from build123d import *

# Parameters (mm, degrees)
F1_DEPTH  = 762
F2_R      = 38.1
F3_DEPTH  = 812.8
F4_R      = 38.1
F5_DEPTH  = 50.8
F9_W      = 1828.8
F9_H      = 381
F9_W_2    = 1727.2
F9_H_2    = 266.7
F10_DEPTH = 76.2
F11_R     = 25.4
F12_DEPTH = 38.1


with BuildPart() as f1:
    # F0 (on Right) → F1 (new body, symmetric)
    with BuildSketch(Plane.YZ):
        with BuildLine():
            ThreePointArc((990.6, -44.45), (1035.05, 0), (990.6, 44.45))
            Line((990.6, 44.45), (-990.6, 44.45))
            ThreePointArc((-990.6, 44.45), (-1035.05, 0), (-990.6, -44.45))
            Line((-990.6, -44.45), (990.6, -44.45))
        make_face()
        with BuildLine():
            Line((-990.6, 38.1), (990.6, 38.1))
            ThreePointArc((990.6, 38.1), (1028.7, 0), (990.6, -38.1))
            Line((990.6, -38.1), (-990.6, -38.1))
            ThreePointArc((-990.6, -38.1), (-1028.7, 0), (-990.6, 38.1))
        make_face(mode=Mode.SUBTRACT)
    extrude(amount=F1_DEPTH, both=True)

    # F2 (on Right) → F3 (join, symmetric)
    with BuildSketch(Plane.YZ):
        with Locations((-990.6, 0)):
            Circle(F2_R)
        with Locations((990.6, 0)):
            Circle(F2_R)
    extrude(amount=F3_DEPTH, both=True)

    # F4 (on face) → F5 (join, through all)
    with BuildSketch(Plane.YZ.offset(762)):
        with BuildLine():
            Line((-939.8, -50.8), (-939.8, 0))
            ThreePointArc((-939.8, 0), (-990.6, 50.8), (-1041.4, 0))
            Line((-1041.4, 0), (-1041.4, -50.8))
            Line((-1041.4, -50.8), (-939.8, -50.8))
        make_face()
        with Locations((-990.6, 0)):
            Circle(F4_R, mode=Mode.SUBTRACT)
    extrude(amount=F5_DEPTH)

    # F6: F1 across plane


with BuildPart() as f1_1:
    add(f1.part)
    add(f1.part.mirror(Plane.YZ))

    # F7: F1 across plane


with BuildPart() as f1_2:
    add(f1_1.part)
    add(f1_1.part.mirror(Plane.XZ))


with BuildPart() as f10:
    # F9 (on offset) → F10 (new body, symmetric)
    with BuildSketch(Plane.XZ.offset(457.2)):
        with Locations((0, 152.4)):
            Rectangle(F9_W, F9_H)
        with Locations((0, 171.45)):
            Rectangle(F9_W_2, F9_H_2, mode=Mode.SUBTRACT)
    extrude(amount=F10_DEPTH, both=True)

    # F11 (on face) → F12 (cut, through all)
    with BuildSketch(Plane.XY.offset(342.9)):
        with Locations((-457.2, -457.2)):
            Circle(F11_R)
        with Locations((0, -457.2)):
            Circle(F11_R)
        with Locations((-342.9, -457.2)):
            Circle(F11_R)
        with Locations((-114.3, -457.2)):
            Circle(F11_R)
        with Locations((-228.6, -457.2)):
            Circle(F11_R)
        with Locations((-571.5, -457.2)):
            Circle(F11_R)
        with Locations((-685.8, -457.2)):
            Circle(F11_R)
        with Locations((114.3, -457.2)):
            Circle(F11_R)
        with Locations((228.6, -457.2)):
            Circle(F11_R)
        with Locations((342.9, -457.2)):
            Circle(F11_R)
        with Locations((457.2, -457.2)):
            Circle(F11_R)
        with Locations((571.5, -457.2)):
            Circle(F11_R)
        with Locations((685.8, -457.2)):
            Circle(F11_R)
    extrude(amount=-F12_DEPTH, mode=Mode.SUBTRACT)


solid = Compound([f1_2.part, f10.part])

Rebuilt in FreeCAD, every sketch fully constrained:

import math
import FreeCAD as App
import Part
import Sketcher
Q = App.Units.Quantity

doc = App.newDocument("Part")
body = doc.addObject("PartDesign::Body", "Body")

sketch1 = body.newObject("Sketcher::SketchObject", "Sketch")
sketch1.AttachmentSupport = (doc.getObject("YZ_Plane"), [""])
sketch1.MapMode = "FlatFace"
sketch1.addGeometry([
    Part.ArcOfCircle(Part.Circle(App.Vector(991, 0, 0), App.Vector(0, 0, 1), 44), math.radians(-90), math.radians(90)),
    Part.LineSegment(App.Vector(991, 44, 0), App.Vector(-991, 44, 0)),
    Part.ArcOfCircle(Part.Circle(App.Vector(-991, 0, 0), App.Vector(0, 0, 1), 44), math.radians(90), math.radians(270)),
    Part.LineSegment(App.Vector(-991, -44, 0), App.Vector(991, -44, 0)),
    Part.ArcOfCircle(Part.Circle(App.Vector(-991, 0, 0), App.Vector(0, 0, 1), 38), math.radians(90), math.radians(270)),
    Part.LineSegment(App.Vector(-991, 38, 0), App.Vector(991, 38, 0)),
    Part.ArcOfCircle(Part.Circle(App.Vector(991, 0, 0), App.Vector(0, 0, 1), 38), math.radians(-90), math.radians(90)),
    Part.LineSegment(App.Vector(991, -38, 0), App.Vector(-991, -38, 0)),
], False)
sketch1.addConstraint([
    Sketcher.Constraint("Tangent", 0, 2, 1, 1),
    Sketcher.Constraint("Tangent", 1, 2, 2, 1),
    Sketcher.Constraint("Tangent", 2, 2, 3, 1),
    Sketcher.Constraint("Tangent", 3, 2, 0, 1),
    Sketcher.Constraint("Tangent", 4, 1, 5, 1),
    Sketcher.Constraint("Tangent", 5, 2, 6, 2),
    Sketcher.Constraint("Tangent", 6, 1, 7, 1),
    Sketcher.Constraint("Tangent", 7, 2, 4, 2),
    Sketcher.Constraint("Horizontal", 1),
    Sketcher.Constraint("Horizontal", 3),
    Sketcher.Constraint("Horizontal", 5),
    Sketcher.Constraint("Horizontal", 7),
    Sketcher.Constraint("Coincident", 4, 3, 2, 3),
    Sketcher.Constraint("Symmetric", 0, 3, 2, 3, -1, 1),
    Sketcher.Constraint("Vertical", 6, 3, 0, 2),
    Sketcher.Constraint("Radius", 4, Q("1.5 in")),
    Sketcher.Constraint("DistanceX", 1, 2, 1, 1, Q("78 in")),
    Sketcher.Constraint("Radius", 0, Q("1.75 in")),
])
pad1 = body.newObject("PartDesign::Pad", "Pad")
pad1.Profile = sketch1
pad1.Length = Q("60 in")
pad1.Midplane = True

sketch2 = body.newObject("Sketcher::SketchObject", "Sketch001")
sketch2.AttachmentSupport = (doc.getObject("YZ_Plane"), [""])
sketch2.MapMode = "FlatFace"
sketch2.addGeometry([
    Part.Circle(App.Vector(-991, 0, 0), App.Vector(0, 0, 1), 38),
    Part.Circle(App.Vector(991, 0, 0), App.Vector(0, 0, 1), 38),
], False)
sketch2.addConstraint([
    Sketcher.Constraint("Equal", 0, 1),
    Sketcher.Constraint("Symmetric", 0, 3, 1, 3, -1, 1),
    Sketcher.Constraint("PointOnObject", 0, 3, -1),
    Sketcher.Constraint("Diameter", 0, Q("3 in")),
    Sketcher.Constraint("DistanceX", 0, 3, -1, 1, Q("39 in")),
])
pad2 = body.newObject("PartDesign::Pad", "Pad001")
pad2.Profile = sketch2
pad2.Length = Q("64 in")
pad2.Midplane = True

sketch3 = body.newObject("Sketcher::SketchObject", "Sketch002")
sketch3.AttachmentSupport = (doc.getObject("YZ_Plane"), [""])
sketch3.MapMode = "FlatFace"
sketch3.AttachmentOffset = App.Placement(App.Vector(0, 0, 30 * 25.4), App.Rotation())
sketch3.addGeometry([
    Part.LineSegment(App.Vector(-940, -51, 0), App.Vector(-940, 0, 0)),
    Part.ArcOfCircle(Part.Circle(App.Vector(-991, 0, 0), App.Vector(0, 0, 1), 51), math.radians(0), math.radians(180)),
    Part.LineSegment(App.Vector(-1041, 0, 0), App.Vector(-1041, -51, 0)),
    Part.LineSegment(App.Vector(-1041, -51, 0), App.Vector(-940, -51, 0)),
    Part.Circle(App.Vector(-991, 0, 0), App.Vector(0, 0, 1), 38),
], False)
sketch3.addConstraint([
    Sketcher.Constraint("Tangent", 0, 2, 1, 1),
    Sketcher.Constraint("Tangent", 1, 2, 2, 1),
    Sketcher.Constraint("Coincident", 2, 2, 3, 1),
    Sketcher.Constraint("Coincident", 3, 2, 0, 1),
    Sketcher.Constraint("Vertical", 0),
    Sketcher.Constraint("Vertical", 2),
    Sketcher.Constraint("Horizontal", 3),
    Sketcher.Constraint("Coincident", 4, 3, 1, 3),
    Sketcher.Constraint("PointOnObject", 1, 3, -1),
    Sketcher.Constraint("Diameter", 4, Q("3 in")),
    Sketcher.Constraint("Radius", 1, Q("2 in")),
    Sketcher.Constraint("DistanceY", 0, 1, 0, 2, Q("2 in")),
    Sketcher.Constraint("DistanceX", 1, 3, -1, 1, Q("39 in")),
])
pad3 = body.newObject("PartDesign::Pad", "Pad002")
pad3.Profile = sketch3
pad3.Type = "UpToLast"
body2 = doc.addObject("PartDesign::Body", "Body001")
doc.recompute()

body2.BaseFeature = body
doc.recompute()

mirroring = doc.addObject("Part::Mirroring", "Mirroring")
mirroring.Source = body
mirroring.Base = App.Vector(0, 0, 0)
mirroring.Normal = App.Vector(1, 0, 0)
body3 = doc.addObject("PartDesign::Body", "Body002")
body3.BaseFeature = mirroring
boolean = body2.newObject("PartDesign::Boolean", "Boolean")
boolean.Type = "Fuse"
boolean.addObjects([body3])
doc.recompute()
body4 = doc.addObject("PartDesign::Body", "Body003")
doc.recompute()

body4.BaseFeature = body2
doc.recompute()

mirroring2 = doc.addObject("Part::Mirroring", "Mirroring001")
mirroring2.Source = body2
mirroring2.Base = App.Vector(0, 0, 0)
mirroring2.Normal = App.Vector(0, -1, 0)
body5 = doc.addObject("PartDesign::Body", "Body004")
body5.BaseFeature = mirroring2
boolean2 = body4.newObject("PartDesign::Boolean", "Boolean001")
boolean2.Type = "Fuse"
boolean2.addObjects([body5])
doc.recompute()
body6 = doc.addObject("PartDesign::Body", "Body005")

sketch4 = body6.newObject("Sketcher::SketchObject", "Sketch003")
sketch4.AttachmentSupport = (doc.getObject("XZ_Plane005"), [""])
sketch4.MapMode = "FlatFace"
sketch4.AttachmentOffset = App.Placement(App.Vector(0, 0, 18 * 25.4), App.Rotation())
sketch4.addGeometry([
    Part.LineSegment(App.Vector(-914, 343, 0), App.Vector(-914, -38, 0)),
    Part.LineSegment(App.Vector(-914, -38, 0), App.Vector(914, -38, 0)),
    Part.LineSegment(App.Vector(914, -38, 0), App.Vector(914, 343, 0)),
    Part.LineSegment(App.Vector(914, 343, 0), App.Vector(-914, 343, 0)),
    Part.LineSegment(App.Vector(864, 38, 0), App.Vector(-864, 38, 0)),
    Part.LineSegment(App.Vector(-864, 38, 0), App.Vector(-864, 305, 0)),
    Part.LineSegment(App.Vector(-864, 305, 0), App.Vector(864, 305, 0)),
    Part.LineSegment(App.Vector(864, 305, 0), App.Vector(864, 38, 0)),
], False)
sketch4.addConstraint([
    Sketcher.Constraint("Coincident", 0, 2, 1, 1),
    Sketcher.Constraint("Coincident", 1, 2, 2, 1),
    Sketcher.Constraint("Coincident", 2, 2, 3, 1),
    Sketcher.Constraint("Coincident", 3, 2, 0, 1),
    Sketcher.Constraint("Coincident", 4, 2, 5, 1),
    Sketcher.Constraint("Coincident", 5, 2, 6, 1),
    Sketcher.Constraint("Coincident", 6, 2, 7, 1),
    Sketcher.Constraint("Coincident", 7, 2, 4, 1),
    Sketcher.Constraint("Vertical", 0),
    Sketcher.Constraint("Horizontal", 1),
    Sketcher.Constraint("Vertical", 2),
    Sketcher.Constraint("Horizontal", 3),
    Sketcher.Constraint("Horizontal", 4),
    Sketcher.Constraint("Vertical", 5),
    Sketcher.Constraint("Horizontal", 6),
    Sketcher.Constraint("Vertical", 7),
    Sketcher.Constraint("DistanceX", 1, 1, 1, 2, Q("72 in")),
    Sketcher.Constraint("DistanceX", 4, 2, 4, 1, Q("68 in")),
    Sketcher.Constraint("DistanceY", 0, 2, 0, 1, Q("15 in")),
    Sketcher.Constraint("DistanceY", 5, 1, 5, 2, Q("10.5 in")),
    Sketcher.Constraint("DistanceX", 0, 2, -1, 1, Q("36 in")),
    Sketcher.Constraint("DistanceX", 4, 2, -1, 1, Q("34 in")),
    Sketcher.Constraint("DistanceY", -1, 1, 5, 2, Q("12 in")),
    Sketcher.Constraint("DistanceY", 0, 2, 4, 2, Q("3 in")),
])
pad4 = body6.newObject("PartDesign::Pad", "Pad003")
pad4.Profile = sketch4
pad4.Length = Q("6 in")
pad4.Midplane = True

sketch5 = body6.newObject("Sketcher::SketchObject", "Sketch004")
sketch5.AttachmentSupport = (doc.getObject("XY_Plane005"), [""])
sketch5.MapMode = "FlatFace"
sketch5.AttachmentOffset = App.Placement(App.Vector(0, 0, 13.5 * 25.4), App.Rotation())
sketch5.addGeometry([
    Part.Circle(App.Vector(-457, -457, 0), App.Vector(0, 0, 1), 25),
    Part.Circle(App.Vector(0, -457, 0), App.Vector(0, 0, 1), 25),
    Part.Circle(App.Vector(-343, -457, 0), App.Vector(0, 0, 1), 25),
    Part.Circle(App.Vector(-114, -457, 0), App.Vector(0, 0, 1), 25),
    Part.Circle(App.Vector(-229, -457, 0), App.Vector(0, 0, 1), 25),
    Part.Circle(App.Vector(-572, -457, 0), App.Vector(0, 0, 1), 25),
    Part.Circle(App.Vector(-686, -457, 0), App.Vector(0, 0, 1), 25),
    Part.Circle(App.Vector(114, -457, 0), App.Vector(0, 0, 1), 25),
    Part.Circle(App.Vector(229, -457, 0), App.Vector(0, 0, 1), 25),
    Part.Circle(App.Vector(343, -457, 0), App.Vector(0, 0, 1), 25),
    Part.Circle(App.Vector(457, -457, 0), App.Vector(0, 0, 1), 25),
    Part.Circle(App.Vector(572, -457, 0), App.Vector(0, 0, 1), 25),
    Part.Circle(App.Vector(686, -457, 0), App.Vector(0, 0, 1), 25),
], False)
sketch5.addConstraint([
    Sketcher.Constraint("Equal", 0, 1),
    Sketcher.Constraint("Equal", 1, 2),
    Sketcher.Constraint("Equal", 2, 3),
    Sketcher.Constraint("Equal", 3, 4),
    Sketcher.Constraint("Equal", 4, 5),
    Sketcher.Constraint("Equal", 5, 6),
    Sketcher.Constraint("Equal", 6, 7),
    Sketcher.Constraint("Equal", 7, 8),
    Sketcher.Constraint("Equal", 8, 9),
    Sketcher.Constraint("Equal", 9, 10),
    Sketcher.Constraint("Equal", 10, 11),
    Sketcher.Constraint("Equal", 11, 12),
    Sketcher.Constraint("Symmetric", 3, 3, 7, 3, -2),
    Sketcher.Constraint("Symmetric", 4, 3, 8, 3, -2),
    Sketcher.Constraint("Symmetric", 2, 3, 9, 3, -2),
    Sketcher.Constraint("Symmetric", 0, 3, 10, 3, -2),
    Sketcher.Constraint("Symmetric", 5, 3, 11, 3, -2),
    Sketcher.Constraint("Symmetric", 6, 3, 12, 3, -2),
    Sketcher.Constraint("PointOnObject", 1, 3, -2),
    Sketcher.Constraint("Horizontal", 0, 3, 1, 3),
    Sketcher.Constraint("Horizontal", 1, 3, 2, 3),
    Sketcher.Constraint("Horizontal", 2, 3, 3, 3),
    Sketcher.Constraint("Horizontal", 3, 3, 4, 3),
    Sketcher.Constraint("Horizontal", 4, 3, 5, 3),
    Sketcher.Constraint("Horizontal", 5, 3, 6, 3),
    Sketcher.Constraint("Diameter", 0, Q("2 in")),
    Sketcher.Constraint("DistanceX", 0, 3, -1, 1, Q("18 in")),
    Sketcher.Constraint("DistanceY", 0, 3, -1, 1, Q("18 in")),
    Sketcher.Constraint("DistanceX", 4, 3, -1, 1, Q("9 in")),
    Sketcher.Constraint("DistanceX", 6, 3, -1, 1, Q("27 in")),
    Sketcher.Constraint("DistanceX", 2, 3, 3, 3, Q("9 in")),
    Sketcher.Constraint("DistanceX", 5, 3, 2, 3, Q("9 in")),
    Sketcher.Constraint("DistanceX", 3, 3, 7, 3, Q("9 in")),
])
pocket1 = body6.newObject("PartDesign::Pocket", "Pocket")
pocket1.Profile = sketch5
pocket1.Length = Q("1.5 in")
mirroring.Visibility = False
mirroring2.Visibility = False

doc.recompute()
